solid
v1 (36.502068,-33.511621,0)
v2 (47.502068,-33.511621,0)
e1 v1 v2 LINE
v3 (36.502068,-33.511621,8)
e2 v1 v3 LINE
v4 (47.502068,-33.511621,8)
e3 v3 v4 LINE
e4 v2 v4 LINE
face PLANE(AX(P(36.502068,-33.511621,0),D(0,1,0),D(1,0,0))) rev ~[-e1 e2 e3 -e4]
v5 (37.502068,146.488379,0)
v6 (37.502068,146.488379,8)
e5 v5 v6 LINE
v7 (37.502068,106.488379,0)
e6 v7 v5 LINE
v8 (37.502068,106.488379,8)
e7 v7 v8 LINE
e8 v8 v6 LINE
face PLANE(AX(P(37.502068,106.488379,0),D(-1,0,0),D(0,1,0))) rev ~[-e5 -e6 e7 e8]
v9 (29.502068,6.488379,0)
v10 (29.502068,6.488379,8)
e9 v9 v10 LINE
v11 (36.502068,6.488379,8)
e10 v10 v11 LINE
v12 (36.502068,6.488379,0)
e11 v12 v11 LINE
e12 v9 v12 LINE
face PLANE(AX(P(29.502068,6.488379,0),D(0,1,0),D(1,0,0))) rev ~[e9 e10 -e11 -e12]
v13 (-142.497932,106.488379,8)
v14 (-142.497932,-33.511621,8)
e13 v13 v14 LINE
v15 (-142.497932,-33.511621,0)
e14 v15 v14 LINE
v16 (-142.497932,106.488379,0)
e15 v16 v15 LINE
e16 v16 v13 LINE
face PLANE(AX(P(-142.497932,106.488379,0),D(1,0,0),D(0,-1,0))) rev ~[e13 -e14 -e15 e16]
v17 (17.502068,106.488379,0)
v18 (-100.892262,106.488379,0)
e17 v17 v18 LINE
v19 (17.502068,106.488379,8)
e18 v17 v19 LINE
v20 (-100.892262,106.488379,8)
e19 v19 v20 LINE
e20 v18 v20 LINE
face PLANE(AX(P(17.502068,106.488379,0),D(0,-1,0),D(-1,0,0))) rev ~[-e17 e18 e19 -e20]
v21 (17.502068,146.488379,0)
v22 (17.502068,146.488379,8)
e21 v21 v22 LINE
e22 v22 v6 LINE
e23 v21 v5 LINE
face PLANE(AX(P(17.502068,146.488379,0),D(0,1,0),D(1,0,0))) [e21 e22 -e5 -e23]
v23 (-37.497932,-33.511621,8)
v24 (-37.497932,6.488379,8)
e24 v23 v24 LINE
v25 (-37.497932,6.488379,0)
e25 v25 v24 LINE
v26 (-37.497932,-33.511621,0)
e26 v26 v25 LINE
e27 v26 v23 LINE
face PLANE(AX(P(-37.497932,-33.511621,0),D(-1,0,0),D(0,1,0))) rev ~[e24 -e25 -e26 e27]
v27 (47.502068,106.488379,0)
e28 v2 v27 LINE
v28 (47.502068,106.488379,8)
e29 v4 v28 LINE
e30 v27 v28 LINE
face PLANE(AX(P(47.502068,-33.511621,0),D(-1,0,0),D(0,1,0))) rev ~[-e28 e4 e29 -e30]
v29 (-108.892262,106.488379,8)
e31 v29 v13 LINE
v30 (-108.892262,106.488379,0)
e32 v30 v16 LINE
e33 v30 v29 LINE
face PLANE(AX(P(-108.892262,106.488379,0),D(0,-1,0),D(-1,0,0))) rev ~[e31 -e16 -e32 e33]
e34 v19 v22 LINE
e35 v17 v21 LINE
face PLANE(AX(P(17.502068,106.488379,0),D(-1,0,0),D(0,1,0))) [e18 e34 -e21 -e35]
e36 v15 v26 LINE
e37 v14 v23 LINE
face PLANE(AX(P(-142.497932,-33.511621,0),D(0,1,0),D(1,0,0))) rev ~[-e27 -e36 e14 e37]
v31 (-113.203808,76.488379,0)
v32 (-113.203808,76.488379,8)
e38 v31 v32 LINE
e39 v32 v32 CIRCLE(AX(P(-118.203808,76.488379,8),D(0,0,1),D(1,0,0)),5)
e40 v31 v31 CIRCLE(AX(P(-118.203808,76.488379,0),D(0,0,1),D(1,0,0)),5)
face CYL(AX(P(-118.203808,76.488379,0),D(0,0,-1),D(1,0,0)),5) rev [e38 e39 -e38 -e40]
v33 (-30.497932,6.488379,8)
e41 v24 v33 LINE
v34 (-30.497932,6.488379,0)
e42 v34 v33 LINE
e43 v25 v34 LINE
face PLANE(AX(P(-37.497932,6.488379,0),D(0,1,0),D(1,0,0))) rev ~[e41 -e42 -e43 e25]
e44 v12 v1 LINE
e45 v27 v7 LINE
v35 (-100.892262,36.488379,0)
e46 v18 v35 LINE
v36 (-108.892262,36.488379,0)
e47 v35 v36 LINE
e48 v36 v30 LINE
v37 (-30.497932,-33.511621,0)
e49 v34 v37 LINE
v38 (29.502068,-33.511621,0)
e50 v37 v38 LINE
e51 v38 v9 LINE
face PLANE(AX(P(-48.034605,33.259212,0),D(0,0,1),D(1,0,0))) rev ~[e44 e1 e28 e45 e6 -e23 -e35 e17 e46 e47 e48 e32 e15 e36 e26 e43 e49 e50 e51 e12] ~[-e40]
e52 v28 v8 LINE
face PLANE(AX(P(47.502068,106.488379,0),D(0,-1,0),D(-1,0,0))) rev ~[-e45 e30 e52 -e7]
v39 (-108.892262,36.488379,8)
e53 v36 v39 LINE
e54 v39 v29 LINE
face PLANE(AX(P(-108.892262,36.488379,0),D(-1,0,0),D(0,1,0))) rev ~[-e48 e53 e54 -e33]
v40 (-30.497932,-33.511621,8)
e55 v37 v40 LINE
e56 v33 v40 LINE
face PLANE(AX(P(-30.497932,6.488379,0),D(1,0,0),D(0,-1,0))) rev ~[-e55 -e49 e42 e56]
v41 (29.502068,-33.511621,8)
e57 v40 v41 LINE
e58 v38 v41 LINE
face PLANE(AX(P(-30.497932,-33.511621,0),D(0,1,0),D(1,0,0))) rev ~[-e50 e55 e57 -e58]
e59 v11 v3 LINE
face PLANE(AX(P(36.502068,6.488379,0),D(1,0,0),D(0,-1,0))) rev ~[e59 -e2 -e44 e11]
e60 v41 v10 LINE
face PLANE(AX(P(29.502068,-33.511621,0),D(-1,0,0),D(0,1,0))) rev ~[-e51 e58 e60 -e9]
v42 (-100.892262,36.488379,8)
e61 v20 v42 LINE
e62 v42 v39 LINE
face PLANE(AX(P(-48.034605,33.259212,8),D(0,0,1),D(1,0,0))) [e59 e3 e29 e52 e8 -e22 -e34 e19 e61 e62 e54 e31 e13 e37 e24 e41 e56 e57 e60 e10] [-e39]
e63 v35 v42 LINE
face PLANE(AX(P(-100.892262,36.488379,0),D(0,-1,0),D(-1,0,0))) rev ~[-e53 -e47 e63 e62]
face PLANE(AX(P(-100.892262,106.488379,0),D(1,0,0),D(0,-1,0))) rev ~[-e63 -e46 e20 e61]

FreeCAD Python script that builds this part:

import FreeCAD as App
import Part
import Sketcher

V = App.Vector
Q = App.Units.Quantity

doc = App.newDocument("Part")
body = doc.addObject("PartDesign::Body", "Body")

sketch1 = body.newObject("Sketcher::SketchObject", "Sketch")
sketch1.AttachmentSupport = (doc.getObject("XY_Plane"), [""])
sketch1.MapMode = "FlatFace"
sketch1.addGeometry([
    Part.LineSegment(V(-108.892262, 106.488379, 0), V(-142.497932, 106.488379, 0)),
    Part.LineSegment(V(-142.497932, 106.488379, 0), V(-142.497932, -33.511621, 0)),
    Part.LineSegment(V(-142.497932, -33.511621, 0), V(-37.497932, -33.511621, 0)),
    Part.LineSegment(V(-37.497932, -33.511621, 0), V(-37.497932, 6.488379, 0)),
    Part.LineSegment(V(-37.497932, 6.488379, 0), V(-30.497932, 6.488379, 0)),
    Part.LineSegment(V(-30.497932, 6.488379, 0), V(-30.497932, -33.511621, 0)),
    Part.LineSegment(V(-30.497932, -33.511621, 0), V(29.502068, -33.511621, 0)),
    Part.LineSegment(V(29.502068, -33.511621, 0), V(29.502068, 6.488379, 0)),
    Part.LineSegment(V(29.502068, 6.488379, 0), V(36.502068, 6.488379, 0)),
    Part.LineSegment(V(36.502068, 6.488379, 0), V(36.502068, -33.511621, 0)),
    Part.LineSegment(V(36.502068, -33.511621, 0), V(47.502068, -33.511621, 0)),
    Part.LineSegment(V(47.502068, -33.511621, 0), V(47.502068, 106.488379, 0)),
    Part.LineSegment(V(47.502068, 106.488379, 0), V(37.502068, 106.488379, 0)),
    Part.LineSegment(V(37.502068, 106.488379, 0), V(37.502068, 146.488379, 0)),
    Part.LineSegment(V(37.502068, 146.488379, 0), V(17.502068, 146.488379, 0)),
    Part.LineSegment(V(17.502068, 146.488379, 0), V(17.502068, 106.488379, 0)),
    Part.LineSegment(V(17.502068, 106.488379, 0), V(-100.892262, 106.488379, 0)),
    Part.LineSegment(V(-100.892262, 106.488379, 0), V(-100.892262, 36.488379, 0)),
    Part.LineSegment(V(-100.892262, 36.488379, 0), V(-108.892262, 36.488379, 0)),
    Part.LineSegment(V(-108.892262, 36.488379, 0), V(-108.892262, 106.488379, 0)),
    Part.Circle(V(-118.203808, 76.488379, 0), V(0, 0, 1), 5),
], False)
sketch1.addConstraint([
    Sketcher.Constraint("Coincident", 0, 2, 1, 1),
    Sketcher.Constraint("Coincident", 1, 2, 2, 1),
    Sketcher.Constraint("Coincident", 2, 2, 3, 1),
    Sketcher.Constraint("Coincident", 3, 2, 4, 1),
    Sketcher.Constraint("Coincident", 4, 2, 5, 1),
    Sketcher.Constraint("Coincident", 5, 2, 6, 1),
    Sketcher.Constraint("Coincident", 6, 2, 7, 1),
    Sketcher.Constraint("Coincident", 7, 2, 8, 1),
    Sketcher.Constraint("Coincident", 8, 2, 9, 1),
    Sketcher.Constraint("Coincident", 9, 2, 10, 1),
    Sketcher.Constraint("Coincident", 10, 2, 11, 1),
    Sketcher.Constraint("Coincident", 11, 2, 12, 1),
    Sketcher.Constraint("Coincident", 12, 2, 13, 1),
    Sketcher.Constraint("Coincident", 13, 2, 14, 1),
    Sketcher.Constraint("Coincident", 14, 2, 15, 1),
    Sketcher.Constraint("Coincident", 15, 2, 16, 1),
    Sketcher.Constraint("Coincident", 16, 2, 17, 1),
    Sketcher.Constraint("Coincident", 17, 2, 18, 1),
    Sketcher.Constraint("Coincident", 18, 2, 19, 1),
    Sketcher.Constraint("Coincident", 19, 2, 0, 1),
    Sketcher.Constraint("Horizontal", 0),
    Sketcher.Constraint("Vertical", 1),
    Sketcher.Constraint("Horizontal", 2),
    Sketcher.Constraint("Vertical", 3),
    Sketcher.Constraint("Horizontal", 4),
    Sketcher.Constraint("Vertical", 5),
    Sketcher.Constraint("Horizontal", 6),
    Sketcher.Constraint("Vertical", 7),
    Sketcher.Constraint("Horizontal", 8),
    Sketcher.Constraint("Vertical", 9),
    Sketcher.Constraint("Horizontal", 10),
    Sketcher.Constraint("Vertical", 11),
    Sketcher.Constraint("Horizontal", 12),
    Sketcher.Constraint("Vertical", 13),
    Sketcher.Constraint("Horizontal", 14),
    Sketcher.Constraint("Vertical", 15),
    Sketcher.Constraint("Horizontal", 16),
    Sketcher.Constraint("Vertical", 17),
    Sketcher.Constraint("Horizontal", 18),
    Sketcher.Constraint("Vertical", 19),
    Sketcher.Constraint("Horizontal", 2, 2, 5, 2),
    Sketcher.Constraint("Horizontal", 4, 2, 7, 2),
    Sketcher.Constraint("Horizontal", 6, 2, 9, 2),
    Sketcher.Constraint("Horizontal", 0, 2, 11, 2),
    Sketcher.Constraint("Horizontal", 12, 2, 15, 2),
    Sketcher.Constraint("Equal", 4, 8),
    Sketcher.Constraint("Equal", 9, 13),
    Sketcher.Constraint("Diameter", 20, Q("10 mm")),
    Sketcher.Constraint("DistanceX", 2, 1, 2, 2, Q("105 mm")),
    Sketcher.Constraint("DistanceX", 4, 1, 4, 2, Q("7 mm")),
    Sketcher.Constraint("DistanceX", 6, 1, 6, 2, Q("60 mm")),
    Sketcher.Constraint("DistanceX", 10, 1, 10, 2, Q("11 mm")),
    Sketcher.Constraint("DistanceX", 12, 2, 12, 1, Q("10 mm")),
    Sketcher.Constraint("DistanceX", 14, 2, 14, 1, Q("20 mm")),
    Sketcher.Constraint("DistanceX", 18, 2, 18, 1, Q("8 mm")),
    Sketcher.Constraint("DistanceY", 1, 2, 1, 1, Q("140 mm")),
    Sketcher.Constraint("DistanceY", 3, 1, 3, 2, Q("40 mm")),
    Sketcher.Constraint("DistanceY", 17, 2, 17, 1, Q("70 mm")),
    Sketcher.Constraint("DistanceY", 20, 3, 0, 2, Q("30 mm")),
    Sketcher.Constraint("DistanceX", 0, 2, 0, 1, Q("33.60567 mm")),
    Sketcher.Constraint("DistanceY", -1, 1, 20, 3, Q("76.488379 mm")),
    Sketcher.Constraint("DistanceX", 0, 2, -1, 1, Q("142.497932 mm")),
    Sketcher.Constraint("DistanceX", 20, 3, -1, 1, Q("118.203808 mm")),
])
pad1 = body.newObject("PartDesign::Pad", "Pad")
pad1.Profile = sketch1
pad1.Length = 8

doc.recompute()
